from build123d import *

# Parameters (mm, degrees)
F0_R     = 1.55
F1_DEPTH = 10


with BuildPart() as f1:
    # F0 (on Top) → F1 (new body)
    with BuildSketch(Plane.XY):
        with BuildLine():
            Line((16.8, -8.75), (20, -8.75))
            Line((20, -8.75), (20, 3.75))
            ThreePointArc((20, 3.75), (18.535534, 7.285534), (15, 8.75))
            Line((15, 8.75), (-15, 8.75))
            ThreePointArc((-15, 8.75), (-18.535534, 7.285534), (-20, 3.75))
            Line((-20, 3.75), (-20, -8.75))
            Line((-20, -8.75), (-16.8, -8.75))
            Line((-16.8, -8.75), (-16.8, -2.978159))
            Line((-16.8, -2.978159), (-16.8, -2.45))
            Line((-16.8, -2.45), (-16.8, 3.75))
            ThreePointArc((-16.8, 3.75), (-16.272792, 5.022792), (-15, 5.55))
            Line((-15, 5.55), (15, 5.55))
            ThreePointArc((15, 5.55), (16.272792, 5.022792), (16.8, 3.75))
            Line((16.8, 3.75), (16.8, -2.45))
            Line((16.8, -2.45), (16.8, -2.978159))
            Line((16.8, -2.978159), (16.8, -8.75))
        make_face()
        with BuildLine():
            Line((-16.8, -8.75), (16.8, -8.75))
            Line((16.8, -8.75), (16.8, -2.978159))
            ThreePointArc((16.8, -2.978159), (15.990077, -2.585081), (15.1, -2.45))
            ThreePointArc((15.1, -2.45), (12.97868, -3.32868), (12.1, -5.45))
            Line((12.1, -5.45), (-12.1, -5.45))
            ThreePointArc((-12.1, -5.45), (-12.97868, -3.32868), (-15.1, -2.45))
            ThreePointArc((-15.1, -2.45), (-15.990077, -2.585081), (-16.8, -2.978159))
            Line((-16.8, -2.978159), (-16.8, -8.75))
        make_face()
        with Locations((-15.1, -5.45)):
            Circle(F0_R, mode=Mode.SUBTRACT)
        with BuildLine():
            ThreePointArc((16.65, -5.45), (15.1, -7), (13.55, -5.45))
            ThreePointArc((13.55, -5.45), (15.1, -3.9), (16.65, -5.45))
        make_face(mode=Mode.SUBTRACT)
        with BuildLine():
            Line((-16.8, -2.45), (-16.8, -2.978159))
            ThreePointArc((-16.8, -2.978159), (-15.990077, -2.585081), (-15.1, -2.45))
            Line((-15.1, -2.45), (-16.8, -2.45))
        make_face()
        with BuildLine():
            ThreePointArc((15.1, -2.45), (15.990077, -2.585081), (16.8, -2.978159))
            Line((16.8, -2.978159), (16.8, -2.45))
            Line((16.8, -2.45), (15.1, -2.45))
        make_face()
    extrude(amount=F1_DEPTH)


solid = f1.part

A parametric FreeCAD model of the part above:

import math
import FreeCAD as App
import Part
import Sketcher
from FreeCAD import Vector
Q = App.Units.Quantity

doc = App.newDocument("Part")
params = doc.addObject("Spreadsheet::Sheet", "Params")
for row, (alias, value) in enumerate([
    ("sketch1_radius", "5 mm"),
    ("sketch1_radius2", "3.000001 mm"),
    ("sketch1_diameter", "3.1 mm"),
    ("sketch1_radius3", "1.800001 mm"),
    ("sketch1_width", "30 mm"),
    ("pad1_length", "10 mm"),
], start=1):
    params.set(f"A{row}", alias)
    params.set(f"B{row}", "=" + value)
    params.setAlias(f"B{row}", alias)

body = doc.addObject("PartDesign::Body", "Body")

# Sketch on XY plane
sketch1 = body.newObject("Sketcher::SketchObject", "Sketch")
sketch1.AttachmentSupport = (doc.getObject("XY_Plane"), [""])
sketch1.MapMode = "FlatFace"
sketch1.addGeometry(Part.LineSegment(Vector(20, -8.8, 0), Vector(20, 3.8, 0)), False)
sketch1.addGeometry(Part.ArcOfCircle(Part.Circle(Vector(15, 3.8, 0), Vector(0, 0, 1), 5), math.radians(0), math.radians(90)), False)
sketch1.addGeometry(Part.LineSegment(Vector(15, 8.8, 0), Vector(-15, 8.8, 0)), False)
sketch1.addGeometry(Part.ArcOfCircle(Part.Circle(Vector(-15, 3.8, 0), Vector(0, 0, 1), 5), math.radians(90), math.radians(180)), False)
sketch1.addGeometry(Part.LineSegment(Vector(-20, 3.8, 0), Vector(-20, -8.8, 0)), False)
sketch1.addGeometry(Part.LineSegment(Vector(-20, -8.8, 0), Vector(20, -8.8, 0)), False)
sketch1.addGeometry(Part.Circle(Vector(-15.1, -5.5, 0), Vector(0, 0, 1), 1.6), False)
sketch1.addGeometry(Part.Circle(Vector(15.1, -5.5, 0), Vector(0, 0, 1), 1.6), False)
sketch1.addGeometry(Part.LineSegment(Vector(-16.8, -2.5, 0), Vector(-16.8, 3.8, 0)), False)
sketch1.addGeometry(Part.ArcOfCircle(Part.Circle(Vector(-15, 3.7, 0), Vector(0, 0, 1), 1.8), math.radians(90), math.radians(180)), False)
sketch1.addGeometry(Part.LineSegment(Vector(-15, 5.5, 0), Vector(15, 5.5, 0)), False)
sketch1.addGeometry(Part.ArcOfCircle(Part.Circle(Vector(15, 3.7, 0), Vector(0, 0, 1), 1.8), math.radians(0), math.radians(90)), False)
sketch1.addGeometry(Part.LineSegment(Vector(16.8, 3.8, 0), Vector(16.8, -2.5, 0)), False)
sketch1.addGeometry(Part.LineSegment(Vector(16.8, -2.5, 0), Vector(15.1, -2.5, 0)), False)
sketch1.addGeometry(Part.ArcOfCircle(Part.Circle(Vector(15.1, -5.5, 0), Vector(0, 0, 1), 3), math.radians(90), math.radians(180)), False)
sketch1.addGeometry(Part.LineSegment(Vector(12.1, -5.5, 0), Vector(-12.1, -5.5, 0)), False)
sketch1.addGeometry(Part.ArcOfCircle(Part.Circle(Vector(-15.1, -5.5, 0), Vector(0, 0, 1), 3), math.radians(0), math.radians(90)), False)
sketch1.addGeometry(Part.LineSegment(Vector(-15.1, -2.5, 0), Vector(-16.8, -2.5, 0)), False)
sketch1.addConstraint(Sketcher.Constraint("Tangent", 0, 2, 1, 1))
sketch1.addConstraint(Sketcher.Constraint("Tangent", 1, 2, 2, 1))
sketch1.addConstraint(Sketcher.Constraint("Tangent", 2, 2, 3, 1))
sketch1.addConstraint(Sketcher.Constraint("Tangent", 3, 2, 4, 1))
sketch1.addConstraint(Sketcher.Constraint("Coincident", 4, 2, 5, 1))
sketch1.addConstraint(Sketcher.Constraint("Coincident", 5, 2, 0, 1))
sketch1.addConstraint(Sketcher.Constraint("Tangent", 8, 2, 9, 2))
sketch1.addConstraint(Sketcher.Constraint("Tangent", 9, 1, 10, 1))
sketch1.addConstraint(Sketcher.Constraint("Tangent", 10, 2, 11, 2))
sketch1.addConstraint(Sketcher.Constraint("Tangent", 11, 1, 12, 1))
sketch1.addConstraint(Sketcher.Constraint("Coincident", 12, 2, 13, 1))
sketch1.addConstraint(Sketcher.Constraint("Tangent", 13, 2, 14, 1))
sketch1.addConstraint(Sketcher.Constraint("Coincident", 14, 2, 15, 1))
sketch1.addConstraint(Sketcher.Constraint("Coincident", 15, 2, 16, 1))
sketch1.addConstraint(Sketcher.Constraint("Tangent", 16, 2, 17, 1))
sketch1.addConstraint(Sketcher.Constraint("Coincident", 17, 2, 8, 1))
sketch1.addConstraint(Sketcher.Constraint("Vertical", 0))
sketch1.addConstraint(Sketcher.Constraint("Horizontal", 2))
sketch1.addConstraint(Sketcher.Constraint("Vertical", 4))
sketch1.addConstraint(Sketcher.Constraint("Horizontal", 5))
sketch1.addConstraint(Sketcher.Constraint("Vertical", 8))
sketch1.addConstraint(Sketcher.Constraint("Horizontal", 10))
sketch1.addConstraint(Sketcher.Constraint("Vertical", 12))
sketch1.addConstraint(Sketcher.Constraint("Horizontal", 13))
sketch1.addConstraint(Sketcher.Constraint("Horizontal", 15))
sketch1.addConstraint(Sketcher.Constraint("Horizontal", 17))
sketch1.addConstraint(Sketcher.Constraint("Coincident", 9, 3, 3, 3))
sketch1.addConstraint(Sketcher.Constraint("Coincident", 11, 3, 1, 3))
sketch1.addConstraint(Sketcher.Constraint("Coincident", 14, 3, 7, 3))
sketch1.addConstraint(Sketcher.Constraint("Coincident", 16, 3, 6, 3))
sketch1.addConstraint(Sketcher.Constraint("Equal", 1, 3))
sketch1.addConstraint(Sketcher.Constraint("Equal", 6, 7))
sketch1.addConstraint(Sketcher.Constraint("Equal", 14, 16))
sketch1.addConstraint(Sketcher.Constraint("Symmetric", 6, 3, 7, 3, -2))
sketch1.addConstraint(Sketcher.Constraint("Horizontal", 16, 3, 14, 2))
sketch1.addConstraint(Sketcher.Constraint("Equal", 13, 17))
sketch1.addConstraint(Sketcher.Constraint("Radius", 1, Q("5 mm")))
sketch1.addConstraint(Sketcher.Constraint("Radius", 14, Q("3.000001 mm")))
sketch1.addConstraint(Sketcher.Constraint("Diameter", 6, Q("3.1 mm")))
sketch1.addConstraint(Sketcher.Constraint("Radius", 9, Q("1.800001 mm")))
sketch1.addConstraint(Sketcher.Constraint("DistanceX", 2, 2, 2, 1, Q("30 mm")))
sketch1.addConstraint(Sketcher.Constraint("DistanceX", 13, 2, 13, 1, Q("1.7 mm")))
sketch1.addConstraint(Sketcher.Constraint("DistanceY", 0, 1, 0, 2, Q("12.5 mm")))
sketch1.addConstraint(Sketcher.Constraint("DistanceY", 8, 1, 8, 2, Q("6.2 mm")))
sketch1.addConstraint(Sketcher.Constraint("DistanceY", -1, 1, 1, 3, Q("3.75 mm")))
sketch1.setExpression("Constraints[36]", "Params.sketch1_radius")
sketch1.setExpression("Constraints[37]", "Params.sketch1_radius2")
sketch1.setExpression("Constraints[38]", "Params.sketch1_diameter")
sketch1.setExpression("Constraints[39]", "Params.sketch1_radius3")
sketch1.setExpression("Constraints[40]", "Params.sketch1_width")
pad1 = body.newObject("PartDesign::Pad", "Pad")
pad1.Profile = sketch1
pad1.setExpression("Length", "Params.pad1_length")

doc.recompute()
